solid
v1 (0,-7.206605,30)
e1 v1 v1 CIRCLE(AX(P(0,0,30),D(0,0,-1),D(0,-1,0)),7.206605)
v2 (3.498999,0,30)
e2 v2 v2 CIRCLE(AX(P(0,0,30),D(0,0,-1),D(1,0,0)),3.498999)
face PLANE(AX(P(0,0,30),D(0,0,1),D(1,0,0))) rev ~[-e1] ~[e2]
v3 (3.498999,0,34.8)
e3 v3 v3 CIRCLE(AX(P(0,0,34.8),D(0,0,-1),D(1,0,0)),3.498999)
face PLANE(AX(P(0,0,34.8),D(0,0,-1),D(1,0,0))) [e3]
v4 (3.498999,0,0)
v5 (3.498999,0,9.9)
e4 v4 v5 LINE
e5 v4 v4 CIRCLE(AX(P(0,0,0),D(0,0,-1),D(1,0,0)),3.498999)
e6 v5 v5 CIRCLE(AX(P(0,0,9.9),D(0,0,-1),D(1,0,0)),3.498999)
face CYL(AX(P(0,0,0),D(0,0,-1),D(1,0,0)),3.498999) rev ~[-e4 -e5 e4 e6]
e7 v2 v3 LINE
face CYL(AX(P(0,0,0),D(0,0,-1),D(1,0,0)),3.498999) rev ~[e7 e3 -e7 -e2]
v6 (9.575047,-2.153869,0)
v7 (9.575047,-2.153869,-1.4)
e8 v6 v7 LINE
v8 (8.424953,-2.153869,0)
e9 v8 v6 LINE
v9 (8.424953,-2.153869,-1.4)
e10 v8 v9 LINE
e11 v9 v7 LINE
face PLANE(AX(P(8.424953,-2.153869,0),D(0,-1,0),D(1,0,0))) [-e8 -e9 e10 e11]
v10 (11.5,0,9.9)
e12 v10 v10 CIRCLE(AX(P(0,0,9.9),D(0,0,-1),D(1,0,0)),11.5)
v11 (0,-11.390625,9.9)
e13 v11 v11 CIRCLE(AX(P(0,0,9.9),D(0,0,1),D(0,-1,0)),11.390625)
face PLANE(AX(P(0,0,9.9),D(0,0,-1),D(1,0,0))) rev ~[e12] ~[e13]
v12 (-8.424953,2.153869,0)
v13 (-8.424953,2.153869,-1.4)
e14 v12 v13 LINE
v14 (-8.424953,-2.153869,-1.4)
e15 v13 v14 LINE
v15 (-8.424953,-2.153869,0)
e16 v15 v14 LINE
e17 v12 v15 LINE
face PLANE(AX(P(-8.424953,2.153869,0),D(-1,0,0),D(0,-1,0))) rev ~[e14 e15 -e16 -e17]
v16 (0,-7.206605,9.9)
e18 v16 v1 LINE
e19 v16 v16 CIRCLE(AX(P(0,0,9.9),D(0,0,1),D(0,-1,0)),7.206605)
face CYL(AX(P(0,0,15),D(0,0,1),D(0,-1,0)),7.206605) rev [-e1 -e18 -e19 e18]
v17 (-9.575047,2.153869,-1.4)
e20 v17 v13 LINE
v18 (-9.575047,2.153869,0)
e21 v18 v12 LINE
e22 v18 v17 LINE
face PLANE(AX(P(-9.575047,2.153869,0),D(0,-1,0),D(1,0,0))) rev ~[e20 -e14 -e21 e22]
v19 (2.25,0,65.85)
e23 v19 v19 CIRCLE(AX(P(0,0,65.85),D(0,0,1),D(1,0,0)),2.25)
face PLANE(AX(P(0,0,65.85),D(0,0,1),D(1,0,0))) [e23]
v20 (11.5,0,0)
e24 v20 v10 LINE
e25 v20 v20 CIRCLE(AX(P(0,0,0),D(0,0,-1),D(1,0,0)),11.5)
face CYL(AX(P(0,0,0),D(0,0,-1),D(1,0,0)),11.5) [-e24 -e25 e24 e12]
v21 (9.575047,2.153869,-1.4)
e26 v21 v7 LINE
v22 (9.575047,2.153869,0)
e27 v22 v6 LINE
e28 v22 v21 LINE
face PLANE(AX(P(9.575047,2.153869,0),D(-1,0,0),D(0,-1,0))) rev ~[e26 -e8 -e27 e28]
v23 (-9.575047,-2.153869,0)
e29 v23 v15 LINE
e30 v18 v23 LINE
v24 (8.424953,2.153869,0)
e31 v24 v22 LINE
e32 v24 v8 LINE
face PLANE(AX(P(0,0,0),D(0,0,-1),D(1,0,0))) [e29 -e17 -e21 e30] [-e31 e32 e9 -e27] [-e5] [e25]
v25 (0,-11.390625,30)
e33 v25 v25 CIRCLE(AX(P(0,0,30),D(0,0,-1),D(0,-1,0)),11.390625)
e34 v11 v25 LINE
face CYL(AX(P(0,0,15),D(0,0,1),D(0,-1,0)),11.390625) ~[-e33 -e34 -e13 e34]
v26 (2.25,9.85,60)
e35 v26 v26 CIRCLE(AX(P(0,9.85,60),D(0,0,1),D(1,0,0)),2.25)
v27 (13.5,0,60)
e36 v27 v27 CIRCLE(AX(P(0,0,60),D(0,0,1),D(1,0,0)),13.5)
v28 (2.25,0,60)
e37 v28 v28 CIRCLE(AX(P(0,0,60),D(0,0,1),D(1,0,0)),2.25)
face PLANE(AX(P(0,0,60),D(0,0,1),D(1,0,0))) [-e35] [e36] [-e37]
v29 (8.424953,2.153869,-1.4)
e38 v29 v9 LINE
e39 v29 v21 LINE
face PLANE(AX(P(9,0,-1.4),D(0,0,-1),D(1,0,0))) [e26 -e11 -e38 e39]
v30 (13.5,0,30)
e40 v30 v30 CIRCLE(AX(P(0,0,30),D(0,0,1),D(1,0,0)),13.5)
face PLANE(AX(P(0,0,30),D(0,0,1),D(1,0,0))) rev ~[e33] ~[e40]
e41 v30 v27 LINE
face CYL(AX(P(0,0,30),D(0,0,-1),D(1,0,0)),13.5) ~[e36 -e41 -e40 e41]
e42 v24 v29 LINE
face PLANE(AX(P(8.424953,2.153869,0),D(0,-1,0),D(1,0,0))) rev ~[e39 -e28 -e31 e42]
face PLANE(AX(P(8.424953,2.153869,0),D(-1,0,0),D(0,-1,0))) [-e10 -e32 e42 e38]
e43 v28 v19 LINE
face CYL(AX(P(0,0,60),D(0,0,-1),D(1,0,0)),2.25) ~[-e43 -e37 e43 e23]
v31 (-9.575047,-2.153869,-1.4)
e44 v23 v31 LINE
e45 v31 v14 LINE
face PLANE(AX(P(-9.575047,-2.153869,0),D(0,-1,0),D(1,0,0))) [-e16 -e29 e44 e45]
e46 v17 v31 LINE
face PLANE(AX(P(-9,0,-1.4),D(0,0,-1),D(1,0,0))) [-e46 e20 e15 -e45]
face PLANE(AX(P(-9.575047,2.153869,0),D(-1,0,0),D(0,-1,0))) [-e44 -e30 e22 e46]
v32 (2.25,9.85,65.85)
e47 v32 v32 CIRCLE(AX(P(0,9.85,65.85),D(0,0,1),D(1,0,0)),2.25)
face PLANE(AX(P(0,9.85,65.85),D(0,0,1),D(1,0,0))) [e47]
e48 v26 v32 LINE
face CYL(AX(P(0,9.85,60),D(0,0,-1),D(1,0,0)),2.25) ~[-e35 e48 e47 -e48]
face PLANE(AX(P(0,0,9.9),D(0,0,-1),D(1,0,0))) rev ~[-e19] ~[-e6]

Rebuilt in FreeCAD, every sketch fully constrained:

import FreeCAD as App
import Part
import Sketcher
Q = App.Units.Quantity

doc = App.newDocument("Part")
params = doc.addObject("Spreadsheet::Sheet", "Params")
for row, (alias, value) in enumerate([
    ("sketch1_height", "30 mm"),
    ("revolution_angle", "360 deg"),
    ("sketch2_diameter", "27 mm"),
    ("pad1_length", "30 mm"),
    ("sketch3_diameter", "23 mm"),
    ("pad2_length", "9.9 mm"),
    ("pad3_length", "1.4 mm"),
    ("pocket1_length", "34.8 mm"),
    ("sketch6_diameter", "4.5 mm"),
    ("pad4_length", "5.85 mm"),
], start=1):
    params.set(f"A{row}", alias)
    params.set(f"B{row}", "=" + value)
    params.setAlias(f"B{row}", alias)

body = doc.addObject("PartDesign::Body", "Body")

# Sketch on YZ plane
sketch1 = body.newObject("Sketcher::SketchObject", "Sketch")
sketch1.AttachmentSupport = (doc.getObject("YZ_Plane"), [""])
sketch1.MapMode = "FlatFace"
sketch1.addGeometry(Part.LineSegment(App.Vector(-11.4, 30, 0), App.Vector(-11.4, 0, 0)), False)
sketch1.addGeometry(Part.LineSegment(App.Vector(-11.4, 0, 0), App.Vector(-7.2, 0, 0)), False)
sketch1.addGeometry(Part.LineSegment(App.Vector(-7.2, 0, 0), App.Vector(-7.2, 30, 0)), False)
sketch1.addGeometry(Part.LineSegment(App.Vector(-7.2, 30, 0), App.Vector(-11.4, 30, 0)), False)
sketch1.addConstraint(Sketcher.Constraint("Coincident", 0, 2, 1, 1))
sketch1.addConstraint(Sketcher.Constraint("Coincident", 1, 2, 2, 1))
sketch1.addConstraint(Sketcher.Constraint("Coincident", 2, 2, 3, 1))
sketch1.addConstraint(Sketcher.Constraint("Coincident", 3, 2, 0, 1))
sketch1.addConstraint(Sketcher.Constraint("Vertical", 0))
sketch1.addConstraint(Sketcher.Constraint("Horizontal", 1))
sketch1.addConstraint(Sketcher.Constraint("Vertical", 2))
sketch1.addConstraint(Sketcher.Constraint("Horizontal", 3))
sketch1.addConstraint(Sketcher.Constraint("PointOnObject", 0, 2, -1))
sketch1.addConstraint(Sketcher.Constraint("DistanceY", 0, 2, 0, 1, Q("30 mm")))
sketch1.addConstraint(Sketcher.Constraint("DistanceX", 1, 1, 1, 2, Q("4.18402 mm")))
sketch1.addConstraint(Sketcher.Constraint("DistanceX", 0, 2, -1, 1, Q("11.390625 mm")))
sketch1.setExpression("Constraints[9]", "Params.sketch1_height")
revolution = body.newObject("PartDesign::Revolution", "Revolution")
revolution.Profile = sketch1
revolution.ReferenceAxis = (sketch1, ["V_Axis"])
revolution.setExpression("Angle", "Params.revolution_angle")

# Sketch on XY plane
sketch2 = body.newObject("Sketcher::SketchObject", "Sketch001")
sketch2.AttachmentSupport = (doc.getObject("XY_Plane"), [""])
sketch2.MapMode = "FlatFace"
sketch2.AttachmentOffset = App.Placement(App.Vector(0, 0, 30), App.Rotation())
sketch2.addGeometry(Part.Circle(App.Vector(0, 0, 0), App.Vector(0, 0, 1), 14), False)
sketch2.addConstraint(Sketcher.Constraint("Coincident", 0, 3, -1, 1))
sketch2.addConstraint(Sketcher.Constraint("Diameter", 0, Q("27 mm")))
sketch2.setExpression("Constraints[1]", "Params.sketch2_diameter")
pad1 = body.newObject("PartDesign::Pad", "Pad")
pad1.Profile = sketch2
pad1.setExpression("Length", "Params.pad1_length")

# Sketch on XY plane
sketch3 = body.newObject("Sketcher::SketchObject", "Sketch002")
sketch3.AttachmentSupport = (doc.getObject("XY_Plane"), [""])
sketch3.MapMode = "FlatFace"
sketch3.addGeometry(Part.Circle(App.Vector(0, 0, 0), App.Vector(0, 0, 1), 12), False)
sketch3.addConstraint(Sketcher.Constraint("Coincident", 0, 3, -1, 1))
sketch3.addConstraint(Sketcher.Constraint("Diameter", 0, Q("23 mm")))
sketch3.setExpression("Constraints[1]", "Params.sketch3_diameter")
pad2 = body.newObject("PartDesign::Pad", "Pad001")
pad2.Profile = sketch3
pad2.setExpression("Length", "Params.pad2_length")

# Sketch on XY plane
sketch4 = body.newObject("Sketcher::SketchObject", "Sketch003")
sketch4.AttachmentSupport = (doc.getObject("XY_Plane"), [""])
sketch4.MapMode = "FlatFace"
sketch4.addGeometry(Part.LineSegment(App.Vector(-9.6, -2.2, 0), App.Vector(-9.6, 2.2, 0)), False)
sketch4.addGeometry(Part.LineSegment(App.Vector(-9.6, 2.2, 0), App.Vector(-8.4, 2.2, 0)), False)
sketch4.addGeometry(Part.LineSegment(App.Vector(-8.4, 2.2, 0), App.Vector(-8.4, -2.2, 0)), False)
sketch4.addGeometry(Part.LineSegment(App.Vector(-8.4, -2.2, 0), App.Vector(-9.6, -2.2, 0)), False)
sketch4.addGeometry(Part.LineSegment(App.Vector(8.4, -2.2, 0), App.Vector(8.4, 2.2, 0)), False)
sketch4.addGeometry(Part.LineSegment(App.Vector(8.4, 2.2, 0), App.Vector(9.6, 2.2, 0)), False)
sketch4.addGeometry(Part.LineSegment(App.Vector(9.6, 2.2, 0), App.Vector(9.6, -2.2, 0)), False)
sketch4.addGeometry(Part.LineSegment(App.Vector(9.6, -2.2, 0), App.Vector(8.4, -2.2, 0)), False)
sketch4.addConstraint(Sketcher.Constraint("Coincident", 0, 2, 1, 1))
sketch4.addConstraint(Sketcher.Constraint("Coincident", 1, 2, 2, 1))
sketch4.addConstraint(Sketcher.Constraint("Coincident", 2, 2, 3, 1))
sketch4.addConstraint(Sketcher.Constraint("Coincident", 3, 2, 0, 1))
sketch4.addConstraint(Sketcher.Constraint("Coincident", 4, 2, 5, 1))
sketch4.addConstraint(Sketcher.Constraint("Coincident", 5, 2, 6, 1))
sketch4.addConstraint(Sketcher.Constraint("Coincident", 6, 2, 7, 1))
sketch4.addConstraint(Sketcher.Constraint("Coincident", 7, 2, 4, 1))
sketch4.addConstraint(Sketcher.Constraint("Vertical", 0))
sketch4.addConstraint(Sketcher.Constraint("Horizontal", 1))
sketch4.addConstraint(Sketcher.Constraint("Vertical", 2))
sketch4.addConstraint(Sketcher.Constraint("Horizontal", 3))
sketch4.addConstraint(Sketcher.Constraint("Vertical", 4))
sketch4.addConstraint(Sketcher.Constraint("Horizontal", 5))
sketch4.addConstraint(Sketcher.Constraint("Vertical", 6))
sketch4.addConstraint(Sketcher.Constraint("Horizontal", 7))
sketch4.addConstraint(Sketcher.Constraint("Symmetric", 2, 2, 4, 2, -1, 1))
sketch4.addConstraint(Sketcher.Constraint("Symmetric", 0, 2, 6, 2, -1, 1))
sketch4.addConstraint(Sketcher.Constraint("Horizontal", 1, 2, 4, 2))
sketch4.addConstraint(Sketcher.Constraint("DistanceX", 0, 2, 4, 2, Q("18 mm")))
sketch4.addConstraint(Sketcher.Constraint("DistanceX", 1, 1, 1, 2, Q("1.150094 mm")))
sketch4.addConstraint(Sketcher.Constraint("DistanceY", 0, 1, 0, 2, Q("4.307738 mm")))
pad3 = body.newObject("PartDesign::Pad", "Pad002")
pad3.Profile = sketch4
pad3.setExpression("Length", "Params.pad3_length")
pad3.Reversed = True

# Sketch on XY plane
sketch5 = body.newObject("Sketcher::SketchObject", "Sketch004")
sketch5.AttachmentSupport = (doc.getObject("XY_Plane"), [""])
sketch5.MapMode = "FlatFace"
sketch5.addGeometry(Part.Circle(App.Vector(0, 0, 0), App.Vector(0, 0, 1), 3.5), False)
sketch5.addConstraint(Sketcher.Constraint("Coincident", 0, 3, -1, 1))
sketch5.addConstraint(Sketcher.Constraint("Diameter", 0, Q("6.997998 mm")))
pocket1 = body.newObject("PartDesign::Pocket", "Pocket")
pocket1.Profile = sketch5
pocket1.setExpression("Length", "Params.pocket1_length")
pocket1.Reversed = True

# Sketch on XY plane
sketch6 = body.newObject("Sketcher::SketchObject", "Sketch005")
sketch6.AttachmentSupport = (doc.getObject("XY_Plane"), [""])
sketch6.MapMode = "FlatFace"
sketch6.AttachmentOffset = App.Placement(App.Vector(0, 0, 60), App.Rotation())
sketch6.addGeometry(Part.Circle(App.Vector(0, 0, 0), App.Vector(0, 0, 1), 2.2), False)
sketch6.addGeometry(Part.Circle(App.Vector(0, 9.8, 0), App.Vector(0, 0, 1), 2.2), False)
sketch6.addConstraint(Sketcher.Constraint("Coincident", 0, 3, -1, 1))
sketch6.addConstraint(Sketcher.Constraint("Equal", 0, 1))
sketch6.addConstraint(Sketcher.Constraint("PointOnObject", 1, 3, -2))
sketch6.addConstraint(Sketcher.Constraint("Diameter", 0, Q("4.5 mm")))
sketch6.addConstraint(Sketcher.Constraint("DistanceY", -1, 1, 1, 3, Q("9.85 mm")))
sketch6.setExpression("Constraints[3]", "Params.sketch6_diameter")
pad4 = body.newObject("PartDesign::Pad", "Pad003")
pad4.Profile = sketch6
pad4.setExpression("Length", "Params.pad4_length")

doc.recompute()
